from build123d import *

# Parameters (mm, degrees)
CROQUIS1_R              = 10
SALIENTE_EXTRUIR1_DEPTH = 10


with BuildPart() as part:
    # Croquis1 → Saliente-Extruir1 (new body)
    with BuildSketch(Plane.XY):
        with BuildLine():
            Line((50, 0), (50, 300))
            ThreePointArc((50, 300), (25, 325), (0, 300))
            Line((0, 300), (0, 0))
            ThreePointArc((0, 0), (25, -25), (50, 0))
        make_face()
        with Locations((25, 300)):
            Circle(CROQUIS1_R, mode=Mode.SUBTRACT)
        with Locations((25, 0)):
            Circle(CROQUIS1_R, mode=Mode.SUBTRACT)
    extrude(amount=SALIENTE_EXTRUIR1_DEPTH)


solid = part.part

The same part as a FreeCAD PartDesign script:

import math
import FreeCAD as App
import Part
import Sketcher

V = App.Vector
Q = App.Units.Quantity

doc = App.newDocument("Part")
body = doc.addObject("PartDesign::Body", "Body")

# Sketch on XY plane
sketch1 = body.newObject("Sketcher::SketchObject", "Sketch")
sketch1.AttachmentSupport = (doc.getObject("XY_Plane"), [""])
sketch1.MapMode = "FlatFace"
sketch1.addGeometry(Part.LineSegment(V(50, 0, 0), V(50, 300, 0)), False)
sketch1.addGeometry(Part.ArcOfCircle(Part.Circle(V(25, 300, 0), V(0, 0, 1), 25), math.radians(0), math.radians(180)), False)
sketch1.addGeometry(Part.LineSegment(V(0, 300, 0), V(0, 0, 0)), False)
sketch1.addGeometry(Part.ArcOfCircle(Part.Circle(V(25, 0, 0), V(0, 0, 1), 25), math.radians(180), math.radians(360)), False)
sketch1.addGeometry(Part.Circle(V(25, 0, 0), V(0, 0, 1), 10), False)
sketch1.addGeometry(Part.Circle(V(25, 300, 0), V(0, 0, 1), 10), False)
sketch1.addConstraint(Sketcher.Constraint("Tangent", 0, 2, 1, 1))
sketch1.addConstraint(Sketcher.Constraint("Tangent", 1, 2, 2, 1))
sketch1.addConstraint(Sketcher.Constraint("Tangent", 2, 2, 3, 1))
sketch1.addConstraint(Sketcher.Constraint("Tangent", 3, 2, 0, 1))
sketch1.addConstraint(Sketcher.Constraint("Vertical", 0))
sketch1.addConstraint(Sketcher.Constraint("Vertical", 2))
sketch1.addConstraint(Sketcher.Constraint("Coincident", 2, 2, -1, 1))
sketch1.addConstraint(Sketcher.Constraint("Coincident", 4, 3, 3, 3))
sketch1.addConstraint(Sketcher.Constraint("Coincident", 5, 3, 1, 3))
sketch1.addConstraint(Sketcher.Constraint("Equal", 4, 5))
sketch1.addConstraint(Sketcher.Constraint("Diameter", 4, Q("20 mm")))
sketch1.addConstraint(Sketcher.Constraint("Radius", 1, Q("25 mm")))
sketch1.addConstraint(Sketcher.Constraint("DistanceY", 0, 1, 0, 2, Q("300 mm")))
pad1 = body.newObject("PartDesign::Pad", "Pad")
pad1.Profile = sketch1
pad1.Length = 10

doc.recompute()
